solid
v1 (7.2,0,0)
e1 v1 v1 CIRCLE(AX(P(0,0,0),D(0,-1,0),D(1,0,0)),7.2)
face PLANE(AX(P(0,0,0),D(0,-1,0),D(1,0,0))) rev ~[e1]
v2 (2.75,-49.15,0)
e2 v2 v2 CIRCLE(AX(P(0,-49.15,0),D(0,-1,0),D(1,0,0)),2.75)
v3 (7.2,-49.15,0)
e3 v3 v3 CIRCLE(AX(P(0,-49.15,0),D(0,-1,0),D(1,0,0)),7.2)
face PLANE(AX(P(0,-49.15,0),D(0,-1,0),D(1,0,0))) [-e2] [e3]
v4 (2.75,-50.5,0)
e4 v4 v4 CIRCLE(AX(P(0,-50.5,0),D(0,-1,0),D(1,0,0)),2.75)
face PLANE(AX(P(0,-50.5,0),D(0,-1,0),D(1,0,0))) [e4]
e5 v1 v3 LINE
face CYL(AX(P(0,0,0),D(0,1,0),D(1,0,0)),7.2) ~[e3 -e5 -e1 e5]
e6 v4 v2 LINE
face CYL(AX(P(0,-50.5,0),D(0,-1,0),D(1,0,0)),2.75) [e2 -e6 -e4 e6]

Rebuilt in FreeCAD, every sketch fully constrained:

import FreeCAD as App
import Part
import Sketcher

V = App.Vector
Q = App.Units.Quantity

doc = App.newDocument("Part")
body = doc.addObject("PartDesign::Body", "Body")

sketch1 = doc.addObject("Sketcher::SketchObject", "Sketch")
body.addObject(sketch1)
sketch1.AttachmentSupport = (doc.XZ_Plane, [""])
sketch1.MapMode = "FlatFace"
sketch1.addGeometry(Part.Circle(V(0, 0, 0), V(0, 0, 1), 7), False)
sketch1.addConstraint([
    Sketcher.Constraint("Coincident", 0, 3, -1, 1),
    Sketcher.Constraint("Diameter", 0, Q("14.4 mm")),
])
pad1 = doc.addObject("PartDesign::Pad", "Pad")
body.addObject(pad1)
pad1.Profile = sketch1
pad1.Length = 50.5

sketch2 = doc.addObject("Sketcher::SketchObject", "Sketch001")
body.addObject(sketch2)
sketch2.AttachmentSupport = (doc.XZ_Plane, [""])
sketch2.MapMode = "FlatFace"
sketch2.AttachmentOffset = App.Placement(V(0, 0, 50.5), App.Rotation())
sketch2.addGeometry([
    Part.Circle(V(0, 0, 0), V(0, 0, 1), 7.2),
    Part.Circle(V(0, 0, 0), V(0, 0, 1), 2.8),
], False)
sketch2.addConstraint([
    Sketcher.Constraint("Coincident", 0, 3, -1, 1),
    Sketcher.Constraint("Coincident", 1, 3, -1, 1),
    Sketcher.Constraint("Diameter", 0, Q("14.4 mm")),
    Sketcher.Constraint("Diameter", 1, Q("5.5 mm")),
])
pocket1 = doc.addObject("PartDesign::Pocket", "Pocket")
body.addObject(pocket1)
pocket1.Profile = sketch2
pocket1.Length = 1.35

doc.recompute()
